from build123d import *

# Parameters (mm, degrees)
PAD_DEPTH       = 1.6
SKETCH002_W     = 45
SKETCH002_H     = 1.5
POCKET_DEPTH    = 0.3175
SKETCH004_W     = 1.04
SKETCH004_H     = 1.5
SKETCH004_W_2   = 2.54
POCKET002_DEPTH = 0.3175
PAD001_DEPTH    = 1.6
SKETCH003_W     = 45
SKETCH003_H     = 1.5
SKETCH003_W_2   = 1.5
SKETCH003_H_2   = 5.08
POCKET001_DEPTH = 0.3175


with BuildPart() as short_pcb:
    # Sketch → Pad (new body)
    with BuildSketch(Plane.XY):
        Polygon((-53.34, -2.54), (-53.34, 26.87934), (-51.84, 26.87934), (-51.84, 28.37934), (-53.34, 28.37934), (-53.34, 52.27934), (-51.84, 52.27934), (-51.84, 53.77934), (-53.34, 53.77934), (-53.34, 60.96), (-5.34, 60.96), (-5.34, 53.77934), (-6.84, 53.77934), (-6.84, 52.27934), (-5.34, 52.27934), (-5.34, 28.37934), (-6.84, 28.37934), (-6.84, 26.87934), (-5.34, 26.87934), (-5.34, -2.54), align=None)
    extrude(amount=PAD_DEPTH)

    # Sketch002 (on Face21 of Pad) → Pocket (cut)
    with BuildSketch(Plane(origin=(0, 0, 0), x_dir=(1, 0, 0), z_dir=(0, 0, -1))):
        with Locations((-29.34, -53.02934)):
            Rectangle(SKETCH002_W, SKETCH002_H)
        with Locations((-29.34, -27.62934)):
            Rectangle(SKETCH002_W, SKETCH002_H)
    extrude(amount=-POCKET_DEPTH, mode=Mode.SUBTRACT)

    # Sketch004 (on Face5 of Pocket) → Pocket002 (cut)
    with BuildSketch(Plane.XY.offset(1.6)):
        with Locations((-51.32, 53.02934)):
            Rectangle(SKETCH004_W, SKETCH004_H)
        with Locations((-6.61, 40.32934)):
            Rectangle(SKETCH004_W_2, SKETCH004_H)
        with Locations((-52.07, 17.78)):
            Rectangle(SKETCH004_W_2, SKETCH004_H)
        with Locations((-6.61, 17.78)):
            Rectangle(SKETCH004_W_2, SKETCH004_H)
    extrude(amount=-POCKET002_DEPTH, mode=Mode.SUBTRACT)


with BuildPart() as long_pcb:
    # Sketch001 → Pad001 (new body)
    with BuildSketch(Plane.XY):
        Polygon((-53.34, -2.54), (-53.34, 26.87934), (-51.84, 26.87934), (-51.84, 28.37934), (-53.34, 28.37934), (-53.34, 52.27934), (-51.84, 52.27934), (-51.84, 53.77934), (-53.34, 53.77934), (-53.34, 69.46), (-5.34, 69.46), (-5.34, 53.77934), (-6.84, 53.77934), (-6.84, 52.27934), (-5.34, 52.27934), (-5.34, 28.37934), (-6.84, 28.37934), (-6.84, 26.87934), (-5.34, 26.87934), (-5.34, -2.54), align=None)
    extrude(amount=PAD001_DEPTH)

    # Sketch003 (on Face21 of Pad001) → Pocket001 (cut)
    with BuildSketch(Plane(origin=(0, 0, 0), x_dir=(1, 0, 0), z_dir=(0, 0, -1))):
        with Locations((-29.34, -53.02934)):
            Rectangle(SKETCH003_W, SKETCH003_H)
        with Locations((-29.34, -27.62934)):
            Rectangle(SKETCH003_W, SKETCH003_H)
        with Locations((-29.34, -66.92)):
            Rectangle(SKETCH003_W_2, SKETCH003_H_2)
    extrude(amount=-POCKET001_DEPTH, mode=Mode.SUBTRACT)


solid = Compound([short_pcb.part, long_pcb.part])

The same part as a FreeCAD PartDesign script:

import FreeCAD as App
import Part
import Sketcher

V = App.Vector
Q = App.Units.Quantity


def add_polygon(sketch, points):
    """Adds a closed chain of lines whose ends are joined by coincident constraints."""
    first, n = sketch.GeometryCount, len(points)
    for a, b in zip(points, points[1:] + points[:1]):
        sketch.addGeometry(Part.LineSegment(App.Vector(*a, 0), App.Vector(*b, 0)), False)
    for i in range(n):
        sketch.addConstraint(Sketcher.Constraint("Coincident", first + i, 2, first + (i + 1) % n, 1))

doc = App.newDocument("Part")
body = doc.addObject("PartDesign::Body", "Body")

# Sketch on XY plane
sketch1 = body.newObject("Sketcher::SketchObject", "Sketch")
sketch1.AttachmentSupport = (doc.getObject("XY_Plane"), [""])
sketch1.MapMode = "FlatFace"
add_polygon(sketch1, [(-53.3, 26.9), (-53.3, -2.5), (-5.3, -2.5), (-5.3, 26.9), (-6.8, 26.9), (-6.8, 28.4), (-5.3, 28.4), (-5.3, 52.3), (-6.8, 52.3), (-6.8, 53.8), (-5.3, 53.8), (-5.3, 61), (-53.3, 61), (-53.3, 53.8), (-51.8, 53.8), (-51.8, 52.3), (-53.3, 52.3), (-53.3, 28.4), (-51.8, 28.4), (-51.8, 26.9)])  # lines 0-19
sketch1.addConstraint([
    Sketcher.Constraint("Vertical", 0),
    Sketcher.Constraint("Horizontal", 1),
    Sketcher.Constraint("Vertical", 2),
    Sketcher.Constraint("Horizontal", 3),
    Sketcher.Constraint("Vertical", 4),
    Sketcher.Constraint("Horizontal", 5),
    Sketcher.Constraint("Vertical", 6),
    Sketcher.Constraint("Horizontal", 7),
    Sketcher.Constraint("Vertical", 8),
    Sketcher.Constraint("Horizontal", 9),
    Sketcher.Constraint("Vertical", 10),
    Sketcher.Constraint("Horizontal", 11),
    Sketcher.Constraint("Vertical", 12),
    Sketcher.Constraint("Horizontal", 13),
    Sketcher.Constraint("Vertical", 14),
    Sketcher.Constraint("Horizontal", 15),
    Sketcher.Constraint("Vertical", 16),
    Sketcher.Constraint("Horizontal", 17),
    Sketcher.Constraint("Vertical", 18),
    Sketcher.Constraint("Horizontal", 19),
    Sketcher.Constraint("Horizontal", 9, 2, 12, 2),
    Sketcher.Constraint("Horizontal", 7, 2, 14, 2),
    Sketcher.Constraint("Horizontal", 5, 2, 16, 2),
    Sketcher.Constraint("Horizontal", 3, 2, 18, 2),
    Sketcher.Constraint("Vertical", 2, 2, 5, 2),
    Sketcher.Constraint("Vertical", 4, 2, 7, 2),
    Sketcher.Constraint("Vertical", 6, 2, 9, 2),
    Sketcher.Constraint("Vertical", 0, 2, 11, 2),
    Sketcher.Constraint("Vertical", 12, 2, 15, 2),
    Sketcher.Constraint("Vertical", 14, 2, 17, 2),
    Sketcher.Constraint("Equal", 9, 13),
    Sketcher.Constraint("Equal", 19, 4),
    Sketcher.Constraint("Equal", 4, 8),
    Sketcher.Constraint("DistanceX", 1, 1, 1, 2, Q("48 mm")),
    Sketcher.Constraint("DistanceX", 3, 2, 3, 1, Q("1.5 mm")),
    Sketcher.Constraint("DistanceY", 6, 1, 6, 2, Q("23.9 mm")),
    Sketcher.Constraint("DistanceX", 0, 2, -1, 1, Q("53.34 mm")),
    Sketcher.Constraint("DistanceY", 0, 2, -1, 1, Q("2.54 mm")),
    Sketcher.Constraint("DistanceY", -1, 1, 10, 2, Q("60.96 mm")),
    Sketcher.Constraint("DistanceY", 0, 2, 0, 1, Q("29.41934 mm")),
])
pad1 = body.newObject("PartDesign::Pad", "Pad")
pad1.Profile = sketch1
pad1.Length = 1.6

# Sketch on XY plane
sketch2 = body.newObject("Sketcher::SketchObject", "Sketch001")
sketch2.AttachmentSupport = (doc.getObject("XY_Plane"), [""])
sketch2.MapMode = "FlatFace"
add_polygon(sketch2, [(-51.8, 52.3), (-51.8, 53.8), (-6.8, 53.8), (-6.8, 52.3)])  # lines 0-3
add_polygon(sketch2, [(-51.8, 26.9), (-51.8, 28.4), (-6.8, 28.4), (-6.8, 26.9)])  # lines 4-7
sketch2.addConstraint([
    Sketcher.Constraint("Vertical", 0),
    Sketcher.Constraint("Horizontal", 1),
    Sketcher.Constraint("Vertical", 2),
    Sketcher.Constraint("Horizontal", 3),
    Sketcher.Constraint("Vertical", 4),
    Sketcher.Constraint("Horizontal", 5),
    Sketcher.Constraint("Vertical", 6),
    Sketcher.Constraint("Horizontal", 7),
    Sketcher.Constraint("Vertical", 3, 2, 4, 2),
    Sketcher.Constraint("Vertical", 2, 2, 5, 2),
    Sketcher.Constraint("Equal", 2, 4),
    Sketcher.Constraint("DistanceX", 1, 1, 1, 2, Q("45 mm")),
    Sketcher.Constraint("DistanceY", 0, 1, 0, 2, Q("1.5 mm")),
    Sketcher.Constraint("DistanceY", 4, 2, 3, 2, Q("23.9 mm")),
    Sketcher.Constraint("DistanceX", 0, 2, -1, 1, Q("51.84 mm")),
    Sketcher.Constraint("DistanceY", -1, 1, 0, 2, Q("53.77934 mm")),
])
pocket1 = body.newObject("PartDesign::Pocket", "Pocket")
pocket1.Profile = sketch2
pocket1.Length = 0.3175
pocket1.Reversed = True

# Sketch on XY plane
sketch3 = body.newObject("Sketcher::SketchObject", "Sketch002")
sketch3.AttachmentSupport = (doc.getObject("XY_Plane"), [""])
sketch3.MapMode = "FlatFace"
sketch3.AttachmentOffset = App.Placement(V(0, 0, 1.6), App.Rotation())
add_polygon(sketch3, [(-51.8, 53.8), (-51.8, 52.3), (-50.8, 52.3), (-50.8, 53.8)])  # lines 0-3
add_polygon(sketch3, [(-7.9, 41.1), (-7.9, 39.6), (-5.3, 39.6), (-5.3, 41.1)])  # lines 4-7
add_polygon(sketch3, [(-53.3, 18.5), (-53.3, 17), (-50.8, 17), (-50.8, 18.5)])  # lines 8-11
add_polygon(sketch3, [(-7.9, 18.5), (-7.9, 17), (-5.3, 17), (-5.3, 18.5)])  # lines 12-15
sketch3.addConstraint([
    Sketcher.Constraint("Vertical", 0),
    Sketcher.Constraint("Horizontal", 1),
    Sketcher.Constraint("Vertical", 2),
    Sketcher.Constraint("Horizontal", 3),
    Sketcher.Constraint("Vertical", 4),
    Sketcher.Constraint("Horizontal", 5),
    Sketcher.Constraint("Vertical", 6),
    Sketcher.Constraint("Horizontal", 7),
    Sketcher.Constraint("Vertical", 8),
    Sketcher.Constraint("Horizontal", 9),
    Sketcher.Constraint("Vertical", 10),
    Sketcher.Constraint("Horizontal", 11),
    Sketcher.Constraint("Vertical", 12),
    Sketcher.Constraint("Horizontal", 13),
    Sketcher.Constraint("Vertical", 14),
    Sketcher.Constraint("Horizontal", 15),
    Sketcher.Constraint("Horizontal", 9, 2, 12, 2),
    Sketcher.Constraint("Horizontal", 11, 2, 14, 2),
    Sketcher.Constraint("Vertical", 2, 2, 9, 2),
    Sketcher.Constraint("Vertical", 7, 2, 12, 2),
    Sketcher.Constraint("Vertical", 6, 2, 13, 2),
    Sketcher.Constraint("Equal", 7, 9),
    Sketcher.Constraint("Equal", 2, 4),
    Sketcher.Constraint("Equal", 6, 8),
    Sketcher.Constraint("DistanceY", 0, 2, 0, 1, Q("1.5 mm")),
    Sketcher.Constraint("DistanceX", 1, 1, 1, 2, Q("1.04 mm")),
    Sketcher.Constraint("DistanceX", 5, 1, 5, 2, Q("2.54 mm")),
    Sketcher.Constraint("DistanceX", 1, 2, -1, 1, Q("50.8 mm")),
    Sketcher.Constraint("DistanceY", 4, 2, 1, 2, Q("12.7 mm")),
    Sketcher.Constraint("DistanceX", 0, 2, 5, 2, Q("46.5 mm")),
    Sketcher.Constraint("DistanceY", -1, 1, 8, 2, Q("17.03 mm")),
    Sketcher.Constraint("DistanceY", -1, 1, 0, 2, Q("52.27934 mm")),
])
pocket2 = body.newObject("PartDesign::Pocket", "Pocket001")
pocket2.Profile = sketch3
pocket2.Length = 0.3175
body2 = doc.addObject("PartDesign::Body", "Body001")

# Sketch on XY plane
sketch4 = body2.newObject("Sketcher::SketchObject", "Sketch003")
sketch4.AttachmentSupport = (doc.getObject("XY_Plane001"), [""])
sketch4.MapMode = "FlatFace"
add_polygon(sketch4, [(-53.3, 26.9), (-53.3, -2.5), (-5.3, -2.5), (-5.3, 26.9), (-6.8, 26.9), (-6.8, 28.4), (-5.3, 28.4), (-5.3, 52.3), (-6.8, 52.3), (-6.8, 53.8), (-5.3, 53.8), (-5.3, 69.5), (-53.3, 69.5), (-53.3, 53.8), (-51.8, 53.8), (-51.8, 52.3), (-53.3, 52.3), (-53.3, 28.4), (-51.8, 28.4), (-51.8, 26.9)])  # lines 0-19
sketch4.addConstraint([
    Sketcher.Constraint("Vertical", 0),
    Sketcher.Constraint("Horizontal", 1),
    Sketcher.Constraint("Vertical", 2),
    Sketcher.Constraint("Horizontal", 3),
    Sketcher.Constraint("Vertical", 4),
    Sketcher.Constraint("Horizontal", 5),
    Sketcher.Constraint("Vertical", 6),
    Sketcher.Constraint("Horizontal", 7),
    Sketcher.Constraint("Vertical", 8),
    Sketcher.Constraint("Horizontal", 9),
    Sketcher.Constraint("Vertical", 10),
    Sketcher.Constraint("Horizontal", 11),
    Sketcher.Constraint("Vertical", 12),
    Sketcher.Constraint("Horizontal", 13),
    Sketcher.Constraint("Vertical", 14),
    Sketcher.Constraint("Horizontal", 15),
    Sketcher.Constraint("Vertical", 16),
    Sketcher.Constraint("Horizontal", 17),
    Sketcher.Constraint("Vertical", 18),
    Sketcher.Constraint("Horizontal", 19),
    Sketcher.Constraint("Horizontal", 9, 2, 12, 2),
    Sketcher.Constraint("Horizontal", 7, 2, 14, 2),
    Sketcher.Constraint("Horizontal", 5, 2, 16, 2),
    Sketcher.Constraint("Horizontal", 3, 2, 18, 2),
    Sketcher.Constraint("Vertical", 2, 2, 5, 2),
    Sketcher.Constraint("Vertical", 4, 2, 7, 2),
    Sketcher.Constraint("Vertical", 6, 2, 9, 2),
    Sketcher.Constraint("Vertical", 0, 2, 11, 2),
    Sketcher.Constraint("Vertical", 12, 2, 15, 2),
    Sketcher.Constraint("Vertical", 14, 2, 17, 2),
    Sketcher.Constraint("Equal", 9, 13),
    Sketcher.Constraint("Equal", 19, 4),
    Sketcher.Constraint("Equal", 4, 8),
    Sketcher.Constraint("DistanceX", 1, 1, 1, 2, Q("48 mm")),
    Sketcher.Constraint("DistanceX", 3, 2, 3, 1, Q("1.5 mm")),
    Sketcher.Constraint("DistanceY", 6, 1, 6, 2, Q("23.9 mm")),
    Sketcher.Constraint("DistanceX", 0, 2, -1, 1, Q("53.34 mm")),
    Sketcher.Constraint("DistanceY", 0, 2, -1, 1, Q("2.54 mm")),
    Sketcher.Constraint("DistanceY", -1, 1, 10, 2, Q("69.46 mm")),
    Sketcher.Constraint("DistanceY", 0, 2, 0, 1, Q("29.41934 mm")),
])
pad2 = body2.newObject("PartDesign::Pad", "Pad001")
pad2.Profile = sketch4
pad2.Length = 1.6

# Sketch on XY plane
sketch5 = body2.newObject("Sketcher::SketchObject", "Sketch004")
sketch5.AttachmentSupport = (doc.getObject("XY_Plane001"), [""])
sketch5.MapMode = "FlatFace"
add_polygon(sketch5, [(-51.8, 52.3), (-51.8, 53.8), (-6.8, 53.8), (-6.8, 52.3)])  # lines 0-3
add_polygon(sketch5, [(-51.8, 26.9), (-51.8, 28.4), (-6.8, 28.4), (-6.8, 26.9)])  # lines 4-7
add_polygon(sketch5, [(-30.1, 64.4), (-30.1, 69.5), (-28.6, 69.5), (-28.6, 64.4)])  # lines 8-11
sketch5.addConstraint([
    Sketcher.Constraint("Vertical", 0),
    Sketcher.Constraint("Horizontal", 1),
    Sketcher.Constraint("Vertical", 2),
    Sketcher.Constraint("Horizontal", 3),
    Sketcher.Constraint("Vertical", 4),
    Sketcher.Constraint("Horizontal", 5),
    Sketcher.Constraint("Vertical", 6),
    Sketcher.Constraint("Horizontal", 7),
    Sketcher.Constraint("Vertical", 8),
    Sketcher.Constraint("Horizontal", 9),
    Sketcher.Constraint("Vertical", 10),
    Sketcher.Constraint("Horizontal", 11),
    Sketcher.Constraint("Vertical", 3, 2, 4, 2),
    Sketcher.Constraint("Vertical", 2, 2, 5, 2),
    Sketcher.Constraint("Equal", 11, 0),
    Sketcher.Constraint("Equal", 2, 4),
    Sketcher.Constraint("DistanceX", 1, 1, 1, 2, Q("45 mm")),
    Sketcher.Constraint("DistanceX", 9, 1, 9, 2, Q("1.5 mm")),
    Sketcher.Constraint("DistanceY", 8, 1, 8, 2, Q("5.08 mm")),
    Sketcher.Constraint("DistanceY", 4, 2, 3, 2, Q("23.9 mm")),
    Sketcher.Constraint("DistanceX", 0, 2, -1, 1, Q("51.84 mm")),
    Sketcher.Constraint("DistanceX", 8, 2, -1, 1, Q("30.09 mm")),
    Sketcher.Constraint("DistanceY", -1, 1, 8, 2, Q("69.46 mm")),
    Sketcher.Constraint("DistanceY", -1, 1, 0, 2, Q("53.77934 mm")),
])
pocket3 = body2.newObject("PartDesign::Pocket", "Pocket002")
pocket3.Profile = sketch5
pocket3.Length = 0.3175
pocket3.Reversed = True

doc.recompute()
